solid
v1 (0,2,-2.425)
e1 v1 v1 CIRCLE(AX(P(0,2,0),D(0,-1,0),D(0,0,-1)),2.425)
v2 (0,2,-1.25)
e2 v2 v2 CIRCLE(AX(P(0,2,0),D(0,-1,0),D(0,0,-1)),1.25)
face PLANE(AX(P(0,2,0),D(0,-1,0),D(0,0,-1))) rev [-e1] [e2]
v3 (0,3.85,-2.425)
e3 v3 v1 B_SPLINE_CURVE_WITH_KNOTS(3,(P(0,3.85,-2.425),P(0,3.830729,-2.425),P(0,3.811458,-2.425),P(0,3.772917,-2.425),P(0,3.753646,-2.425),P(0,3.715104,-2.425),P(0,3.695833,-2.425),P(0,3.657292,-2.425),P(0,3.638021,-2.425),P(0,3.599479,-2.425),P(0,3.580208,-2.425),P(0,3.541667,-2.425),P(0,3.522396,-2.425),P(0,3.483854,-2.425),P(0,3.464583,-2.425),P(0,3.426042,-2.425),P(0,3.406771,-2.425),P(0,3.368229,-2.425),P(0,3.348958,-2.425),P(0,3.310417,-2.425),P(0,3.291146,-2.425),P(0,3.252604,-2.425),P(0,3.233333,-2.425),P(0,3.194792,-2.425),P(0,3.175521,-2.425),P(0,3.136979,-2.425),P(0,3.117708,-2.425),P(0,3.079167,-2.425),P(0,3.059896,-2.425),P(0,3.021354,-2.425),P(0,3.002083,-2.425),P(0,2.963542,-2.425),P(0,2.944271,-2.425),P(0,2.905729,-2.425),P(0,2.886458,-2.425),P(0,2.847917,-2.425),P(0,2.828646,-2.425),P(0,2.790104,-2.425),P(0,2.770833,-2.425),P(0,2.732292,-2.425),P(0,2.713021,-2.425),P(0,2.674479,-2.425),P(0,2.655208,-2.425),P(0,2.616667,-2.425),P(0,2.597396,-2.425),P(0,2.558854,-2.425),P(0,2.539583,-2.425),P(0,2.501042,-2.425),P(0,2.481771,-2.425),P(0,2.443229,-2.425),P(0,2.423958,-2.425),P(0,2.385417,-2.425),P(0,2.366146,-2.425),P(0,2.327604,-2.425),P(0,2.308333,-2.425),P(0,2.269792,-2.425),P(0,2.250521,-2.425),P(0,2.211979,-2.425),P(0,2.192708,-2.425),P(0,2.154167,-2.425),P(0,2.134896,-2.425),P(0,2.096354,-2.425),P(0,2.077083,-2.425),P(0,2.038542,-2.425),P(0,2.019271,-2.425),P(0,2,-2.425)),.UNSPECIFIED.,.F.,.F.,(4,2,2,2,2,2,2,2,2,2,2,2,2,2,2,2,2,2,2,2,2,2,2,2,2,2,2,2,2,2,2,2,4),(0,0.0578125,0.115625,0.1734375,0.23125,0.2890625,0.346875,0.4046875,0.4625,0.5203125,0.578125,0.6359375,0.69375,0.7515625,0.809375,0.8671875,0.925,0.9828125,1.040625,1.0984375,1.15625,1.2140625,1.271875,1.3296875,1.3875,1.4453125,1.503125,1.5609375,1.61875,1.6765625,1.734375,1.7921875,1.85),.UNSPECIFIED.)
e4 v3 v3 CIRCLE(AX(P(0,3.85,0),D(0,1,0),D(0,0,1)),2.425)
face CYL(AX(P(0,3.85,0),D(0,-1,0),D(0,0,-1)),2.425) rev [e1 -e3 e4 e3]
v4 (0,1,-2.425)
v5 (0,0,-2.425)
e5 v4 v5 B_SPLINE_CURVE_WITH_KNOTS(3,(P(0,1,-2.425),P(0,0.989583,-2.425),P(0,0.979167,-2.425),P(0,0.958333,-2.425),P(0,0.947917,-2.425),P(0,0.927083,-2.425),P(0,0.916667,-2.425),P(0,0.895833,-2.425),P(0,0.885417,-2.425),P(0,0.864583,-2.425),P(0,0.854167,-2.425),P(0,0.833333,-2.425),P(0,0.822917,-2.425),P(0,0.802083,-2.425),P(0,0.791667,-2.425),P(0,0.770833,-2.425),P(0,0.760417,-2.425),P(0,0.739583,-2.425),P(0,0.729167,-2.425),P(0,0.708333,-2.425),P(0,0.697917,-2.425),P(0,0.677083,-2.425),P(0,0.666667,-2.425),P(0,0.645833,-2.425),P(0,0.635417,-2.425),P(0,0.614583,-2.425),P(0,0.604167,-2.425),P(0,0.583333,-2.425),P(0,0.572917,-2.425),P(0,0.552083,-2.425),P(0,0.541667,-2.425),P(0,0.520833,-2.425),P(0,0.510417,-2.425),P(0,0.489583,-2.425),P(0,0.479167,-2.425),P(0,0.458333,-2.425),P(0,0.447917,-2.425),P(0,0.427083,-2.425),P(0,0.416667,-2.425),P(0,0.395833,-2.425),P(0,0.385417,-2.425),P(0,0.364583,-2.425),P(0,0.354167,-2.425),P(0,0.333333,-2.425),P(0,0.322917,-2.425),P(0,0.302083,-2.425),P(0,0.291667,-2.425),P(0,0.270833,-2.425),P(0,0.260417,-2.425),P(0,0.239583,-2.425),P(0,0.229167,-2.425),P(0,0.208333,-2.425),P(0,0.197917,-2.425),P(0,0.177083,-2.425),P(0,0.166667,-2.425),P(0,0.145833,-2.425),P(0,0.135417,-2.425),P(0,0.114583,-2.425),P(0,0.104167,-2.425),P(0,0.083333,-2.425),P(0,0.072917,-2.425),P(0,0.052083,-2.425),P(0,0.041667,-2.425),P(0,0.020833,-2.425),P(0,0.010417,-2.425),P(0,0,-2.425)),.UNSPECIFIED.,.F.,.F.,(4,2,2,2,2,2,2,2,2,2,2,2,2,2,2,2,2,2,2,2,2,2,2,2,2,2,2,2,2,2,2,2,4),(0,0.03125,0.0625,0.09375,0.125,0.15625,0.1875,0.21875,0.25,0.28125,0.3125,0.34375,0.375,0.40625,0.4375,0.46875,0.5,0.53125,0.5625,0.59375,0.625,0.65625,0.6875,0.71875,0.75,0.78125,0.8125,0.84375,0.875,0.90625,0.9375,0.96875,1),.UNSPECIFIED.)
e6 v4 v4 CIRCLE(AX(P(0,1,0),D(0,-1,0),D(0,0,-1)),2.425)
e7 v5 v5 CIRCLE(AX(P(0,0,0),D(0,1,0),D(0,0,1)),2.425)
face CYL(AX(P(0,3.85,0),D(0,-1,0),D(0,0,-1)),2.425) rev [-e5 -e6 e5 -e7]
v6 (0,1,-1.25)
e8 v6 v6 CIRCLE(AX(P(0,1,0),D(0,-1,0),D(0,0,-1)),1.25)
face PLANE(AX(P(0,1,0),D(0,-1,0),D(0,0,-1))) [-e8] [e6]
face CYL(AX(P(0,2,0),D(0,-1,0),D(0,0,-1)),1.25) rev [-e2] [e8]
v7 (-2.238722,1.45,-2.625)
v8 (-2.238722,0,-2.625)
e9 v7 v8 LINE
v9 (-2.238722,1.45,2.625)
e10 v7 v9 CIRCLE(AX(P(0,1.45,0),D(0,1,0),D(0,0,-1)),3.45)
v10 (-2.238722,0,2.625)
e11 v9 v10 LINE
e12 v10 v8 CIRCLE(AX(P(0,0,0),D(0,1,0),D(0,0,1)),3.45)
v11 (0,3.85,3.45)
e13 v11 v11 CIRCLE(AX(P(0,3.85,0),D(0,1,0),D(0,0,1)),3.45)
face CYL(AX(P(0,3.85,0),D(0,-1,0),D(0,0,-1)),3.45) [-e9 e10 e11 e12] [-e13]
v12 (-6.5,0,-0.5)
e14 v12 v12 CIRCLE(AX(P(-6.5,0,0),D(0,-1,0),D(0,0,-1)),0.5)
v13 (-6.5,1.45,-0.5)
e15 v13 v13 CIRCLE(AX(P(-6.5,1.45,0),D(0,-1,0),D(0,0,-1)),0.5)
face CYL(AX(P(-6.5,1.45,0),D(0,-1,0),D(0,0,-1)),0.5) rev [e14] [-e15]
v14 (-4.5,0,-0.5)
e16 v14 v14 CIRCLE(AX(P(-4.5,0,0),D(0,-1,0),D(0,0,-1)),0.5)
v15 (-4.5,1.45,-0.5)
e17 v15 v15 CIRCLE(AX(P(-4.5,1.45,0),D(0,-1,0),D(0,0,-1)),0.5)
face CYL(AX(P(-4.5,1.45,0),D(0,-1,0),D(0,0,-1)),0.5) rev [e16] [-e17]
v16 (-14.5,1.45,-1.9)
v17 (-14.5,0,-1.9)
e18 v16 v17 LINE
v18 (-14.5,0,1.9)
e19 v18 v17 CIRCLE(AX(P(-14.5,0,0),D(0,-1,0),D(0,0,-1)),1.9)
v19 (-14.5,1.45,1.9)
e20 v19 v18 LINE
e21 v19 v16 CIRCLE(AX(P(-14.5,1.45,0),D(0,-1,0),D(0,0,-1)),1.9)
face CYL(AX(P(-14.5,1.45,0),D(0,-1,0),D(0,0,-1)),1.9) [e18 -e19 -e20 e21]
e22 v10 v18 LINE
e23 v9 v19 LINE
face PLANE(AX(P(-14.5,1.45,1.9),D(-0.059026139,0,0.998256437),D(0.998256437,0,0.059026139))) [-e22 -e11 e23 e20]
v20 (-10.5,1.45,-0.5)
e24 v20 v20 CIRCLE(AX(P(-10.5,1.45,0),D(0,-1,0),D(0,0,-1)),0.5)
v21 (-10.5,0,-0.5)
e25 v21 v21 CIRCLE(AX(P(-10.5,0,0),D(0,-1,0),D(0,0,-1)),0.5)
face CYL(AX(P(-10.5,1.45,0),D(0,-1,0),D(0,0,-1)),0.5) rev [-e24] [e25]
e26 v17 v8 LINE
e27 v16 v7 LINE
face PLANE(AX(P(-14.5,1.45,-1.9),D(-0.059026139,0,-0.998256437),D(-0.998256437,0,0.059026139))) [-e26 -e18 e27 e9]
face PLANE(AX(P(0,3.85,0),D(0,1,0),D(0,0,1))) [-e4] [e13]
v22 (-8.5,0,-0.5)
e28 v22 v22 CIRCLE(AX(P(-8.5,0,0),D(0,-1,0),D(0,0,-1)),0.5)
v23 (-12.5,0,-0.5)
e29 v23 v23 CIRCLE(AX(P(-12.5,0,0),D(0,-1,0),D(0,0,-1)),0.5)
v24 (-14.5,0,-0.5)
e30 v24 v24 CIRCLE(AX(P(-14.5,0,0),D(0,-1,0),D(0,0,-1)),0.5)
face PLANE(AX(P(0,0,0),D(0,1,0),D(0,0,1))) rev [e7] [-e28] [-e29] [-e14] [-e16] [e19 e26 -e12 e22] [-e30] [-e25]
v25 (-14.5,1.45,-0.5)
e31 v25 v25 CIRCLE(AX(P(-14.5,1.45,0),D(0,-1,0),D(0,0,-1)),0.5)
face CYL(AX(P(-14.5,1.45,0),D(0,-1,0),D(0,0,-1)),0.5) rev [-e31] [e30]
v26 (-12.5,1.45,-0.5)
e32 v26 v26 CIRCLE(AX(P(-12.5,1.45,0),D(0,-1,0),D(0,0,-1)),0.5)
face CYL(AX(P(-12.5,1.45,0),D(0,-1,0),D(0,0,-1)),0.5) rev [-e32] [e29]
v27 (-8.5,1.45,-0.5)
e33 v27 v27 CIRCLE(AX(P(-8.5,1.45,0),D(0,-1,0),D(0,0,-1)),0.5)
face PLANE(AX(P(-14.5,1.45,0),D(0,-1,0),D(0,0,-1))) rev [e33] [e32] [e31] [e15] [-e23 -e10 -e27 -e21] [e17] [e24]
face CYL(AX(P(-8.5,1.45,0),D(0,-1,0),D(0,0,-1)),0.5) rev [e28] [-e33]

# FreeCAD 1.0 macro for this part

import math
import FreeCAD as App
import Part
import Sketcher
Q = App.Units.Quantity

doc = App.newDocument("Part")
body = doc.addObject("PartDesign::Body", "Body")

# Sketch on XZ plane
sketch1 = body.newObject("Sketcher::SketchObject", "Sketch")
sketch1.AttachmentSupport = (doc.getObject("XZ_Plane"), [""])
sketch1.MapMode = "FlatFace"
sketch1.addGeometry([
    Part.Circle(App.Vector(0, 0, 0), App.Vector(0, 0, 1), 3.5),
    Part.Circle(App.Vector(0, 0, 0), App.Vector(0, 0, 1), 2.4),
], False)
sketch1.addConstraint([
    Sketcher.Constraint("Coincident", 0, 3, -1, 1),
    Sketcher.Constraint("Coincident", 1, 3, -1, 1),
    Sketcher.Constraint("Diameter", 0, Q("6.9 mm")),
    Sketcher.Constraint("Diameter", 1, Q("4.85 mm")),
])
pad1 = body.newObject("PartDesign::Pad", "Pad")
pad1.Profile = sketch1
pad1.Length = 3.85
pad1.Reversed = True

# Sketch on XZ plane
sketch2 = body.newObject("Sketcher::SketchObject", "Sketch001")
sketch2.AttachmentSupport = (doc.getObject("XZ_Plane"), [""])
sketch2.MapMode = "FlatFace"
sketch2.AttachmentOffset = App.Placement(App.Vector(0, 0, -1), App.Rotation())
sketch2.addGeometry([
    Part.Circle(App.Vector(0, 0, 0), App.Vector(0, 0, 1), 2.4),
    Part.Circle(App.Vector(0, 0, 0), App.Vector(0, 0, 1), 1.2),
], False)
sketch2.addConstraint([
    Sketcher.Constraint("Coincident", 0, 3, -1, 1),
    Sketcher.Constraint("Coincident", 1, 3, -1, 1),
    Sketcher.Constraint("Diameter", 1, Q("2.5 mm")),
    Sketcher.Constraint("Diameter", 0, Q("4.85 mm")),
])
pad2 = body.newObject("PartDesign::Pad", "Pad001")
pad2.Profile = sketch2
pad2.Length = 1
pad2.Reversed = True

# Sketch on XZ plane
sketch3 = body.newObject("Sketcher::SketchObject", "Sketch002")
sketch3.AttachmentSupport = (doc.getObject("XZ_Plane"), [""])
sketch3.MapMode = "FlatFace"
sketch3.addGeometry([
    Part.LineSegment(App.Vector(-14.5, -1.9, 0), App.Vector(-2.2, -2.6, 0)),  # 0
    Part.ArcOfCircle(Part.Circle(App.Vector(0, 0, 0), App.Vector(0, 0, 1), 3.4), math.radians(130), math.radians(230)),  # 1
    Part.LineSegment(App.Vector(-2.2, 2.6, 0), App.Vector(-14.5, 1.9, 0)),  # 2
    Part.ArcOfCircle(Part.Circle(App.Vector(-14.5, 0, 0), App.Vector(0, 0, 1), 1.9), math.radians(90), math.radians(270)),  # 3
    Part.Circle(App.Vector(-14.5, 0, 0), App.Vector(0, 0, 1), 0.5),  # 4
    Part.Circle(App.Vector(-12.5, 0, 0), App.Vector(0, 0, 1), 0.5),  # 5
    Part.Circle(App.Vector(-10.5, 0, 0), App.Vector(0, 0, 1), 0.5),  # 6
    Part.Circle(App.Vector(-8.5, 0, 0), App.Vector(0, 0, 1), 0.5),  # 7
    Part.Circle(App.Vector(-6.5, 0, 0), App.Vector(0, 0, 1), 0.5),  # 8
    Part.Circle(App.Vector(-4.5, 0, 0), App.Vector(0, 0, 1), 0.5),  # 9
], False)
sketch3.addConstraint([
    Sketcher.Constraint("Coincident", 0, 2, 1, 2),
    Sketcher.Constraint("Coincident", 1, 1, 2, 1),
    Sketcher.Constraint("Coincident", 2, 2, 3, 1),
    Sketcher.Constraint("Coincident", 3, 2, 0, 1),
    Sketcher.Constraint("Coincident", 1, 3, -1, 1),
    Sketcher.Constraint("Coincident", 4, 3, 3, 3),
    Sketcher.Constraint("Equal", 4, 5),
    Sketcher.Constraint("Equal", 5, 6),
    Sketcher.Constraint("Equal", 6, 7),
    Sketcher.Constraint("Equal", 7, 8),
    Sketcher.Constraint("Equal", 8, 9),
    Sketcher.Constraint("Symmetric", 2, 2, 3, 2, -1),
    Sketcher.Constraint("PointOnObject", 5, 3, -1),
    Sketcher.Constraint("PointOnObject", 6, 3, -1),
    Sketcher.Constraint("PointOnObject", 7, 3, -1),
    Sketcher.Constraint("PointOnObject", 8, 3, -1),
    Sketcher.Constraint("PointOnObject", 9, 3, -1),
    Sketcher.Constraint("Vertical", 0, 2, 1, 1),
    Sketcher.Constraint("Vertical", 4, 3, 2, 2),
    Sketcher.Constraint("Diameter", 4, Q("1 mm")),
    Sketcher.Constraint("Radius", 3, Q("1.9 mm")),
    Sketcher.Constraint("Radius", 1, Q("3.45 mm")),
    Sketcher.Constraint("DistanceX", 3, 3, 5, 3, Q("2 mm")),
    Sketcher.Constraint("DistanceX", 5, 3, 6, 3, Q("2 mm")),
    Sketcher.Constraint("DistanceX", 6, 3, 7, 3, Q("2 mm")),
    Sketcher.Constraint("DistanceX", 7, 3, 8, 3, Q("2 mm")),
    Sketcher.Constraint("DistanceX", 8, 3, 9, 3, Q("2 mm")),
    Sketcher.Constraint("DistanceX", 3, 3, -1, 1, Q("14.5 mm")),
    Sketcher.Constraint("DistanceY", 0, 2, 1, 1, Q("5.25 mm")),
])
pad3 = body.newObject("PartDesign::Pad", "Pad002")
pad3.Profile = sketch3
pad3.Length = 1.45
pad3.Reversed = True

doc.recompute()
